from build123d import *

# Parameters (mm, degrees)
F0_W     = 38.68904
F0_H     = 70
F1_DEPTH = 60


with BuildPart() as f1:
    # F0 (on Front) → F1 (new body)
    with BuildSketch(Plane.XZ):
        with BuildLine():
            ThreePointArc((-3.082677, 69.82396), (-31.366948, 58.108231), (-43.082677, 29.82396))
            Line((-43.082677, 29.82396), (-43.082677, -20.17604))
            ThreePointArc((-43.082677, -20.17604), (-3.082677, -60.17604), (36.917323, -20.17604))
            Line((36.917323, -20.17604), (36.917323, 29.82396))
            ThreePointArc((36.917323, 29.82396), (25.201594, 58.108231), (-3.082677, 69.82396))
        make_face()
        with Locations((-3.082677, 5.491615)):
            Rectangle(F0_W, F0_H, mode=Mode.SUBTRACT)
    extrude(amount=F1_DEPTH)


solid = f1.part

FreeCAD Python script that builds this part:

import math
import FreeCAD as App
import Part
import Sketcher

V = App.Vector
Q = App.Units.Quantity

doc = App.newDocument("Part")
body = doc.addObject("PartDesign::Body", "Body")

sketch1 = body.newObject("Sketcher::SketchObject", "Sketch")
sketch1.AttachmentSupport = (doc.getObject("XZ_Plane"), [""])
sketch1.MapMode = "FlatFace"
sketch1.addGeometry([
    Part.ArcOfCircle(Part.Circle(V(-3, 30, 0), V(0, 0, 1), 40), math.radians(90), math.radians(180)),
    Part.LineSegment(V(-43, 30, 0), V(-43, -20, 0)),
    Part.ArcOfCircle(Part.Circle(V(-3, -20, 0), V(0, 0, 1), 40), math.radians(180), math.radians(360)),
    Part.LineSegment(V(37, -20, 0), V(37, 30, 0)),
    Part.ArcOfCircle(Part.Circle(V(-3, 30, 0), V(0, 0, 1), 40), math.radians(0), math.radians(90)),
    Part.LineSegment(V(16, -30, 0), V(-22, -30, 0)),
    Part.LineSegment(V(-22, -30, 0), V(-22, 40, 0)),
    Part.LineSegment(V(-22, 40, 0), V(16, 40, 0)),
    Part.LineSegment(V(16, 40, 0), V(16, -30, 0)),
], False)
sketch1.addConstraint([
    Sketcher.Constraint("Tangent", 0, 2, 1, 1),
    Sketcher.Constraint("Tangent", 1, 2, 2, 1),
    Sketcher.Constraint("Tangent", 2, 2, 3, 1),
    Sketcher.Constraint("Tangent", 3, 2, 4, 1),
    Sketcher.Constraint("Tangent", 4, 2, 0, 1),
    Sketcher.Constraint("Coincident", 5, 2, 6, 1),
    Sketcher.Constraint("Coincident", 6, 2, 7, 1),
    Sketcher.Constraint("Coincident", 7, 2, 8, 1),
    Sketcher.Constraint("Coincident", 8, 2, 5, 1),
    Sketcher.Constraint("Vertical", 1),
    Sketcher.Constraint("Vertical", 3),
    Sketcher.Constraint("Horizontal", 5),
    Sketcher.Constraint("Vertical", 6),
    Sketcher.Constraint("Horizontal", 7),
    Sketcher.Constraint("Vertical", 8),
    Sketcher.Constraint("Equal", 0, 2),
    Sketcher.Constraint("Vertical", 2, 3, 4, 2),
    Sketcher.Constraint("Radius", 0, Q("40.000001 mm")),
    Sketcher.Constraint("DistanceY", 1, 2, 1, 1, Q("50 mm")),
    Sketcher.Constraint("DistanceY", 6, 1, 6, 2, Q("70 mm")),
    Sketcher.Constraint("DistanceX", 5, 2, 5, 1, Q("38.68904 mm")),
    Sketcher.Constraint("DistanceY", -1, 1, 0, 3, Q("29.823959 mm")),
    Sketcher.Constraint("DistanceX", 5, 2, 2, 3, Q("19.34452 mm")),
    Sketcher.Constraint("DistanceX", 0, 3, -1, 1, Q("3.082676 mm")),
    Sketcher.Constraint("DistanceY", 5, 2, -1, 1, Q("29.508385 mm")),
])
pad1 = body.newObject("PartDesign::Pad", "Pad")
pad1.Profile = sketch1
pad1.Length = 60

doc.recompute()
